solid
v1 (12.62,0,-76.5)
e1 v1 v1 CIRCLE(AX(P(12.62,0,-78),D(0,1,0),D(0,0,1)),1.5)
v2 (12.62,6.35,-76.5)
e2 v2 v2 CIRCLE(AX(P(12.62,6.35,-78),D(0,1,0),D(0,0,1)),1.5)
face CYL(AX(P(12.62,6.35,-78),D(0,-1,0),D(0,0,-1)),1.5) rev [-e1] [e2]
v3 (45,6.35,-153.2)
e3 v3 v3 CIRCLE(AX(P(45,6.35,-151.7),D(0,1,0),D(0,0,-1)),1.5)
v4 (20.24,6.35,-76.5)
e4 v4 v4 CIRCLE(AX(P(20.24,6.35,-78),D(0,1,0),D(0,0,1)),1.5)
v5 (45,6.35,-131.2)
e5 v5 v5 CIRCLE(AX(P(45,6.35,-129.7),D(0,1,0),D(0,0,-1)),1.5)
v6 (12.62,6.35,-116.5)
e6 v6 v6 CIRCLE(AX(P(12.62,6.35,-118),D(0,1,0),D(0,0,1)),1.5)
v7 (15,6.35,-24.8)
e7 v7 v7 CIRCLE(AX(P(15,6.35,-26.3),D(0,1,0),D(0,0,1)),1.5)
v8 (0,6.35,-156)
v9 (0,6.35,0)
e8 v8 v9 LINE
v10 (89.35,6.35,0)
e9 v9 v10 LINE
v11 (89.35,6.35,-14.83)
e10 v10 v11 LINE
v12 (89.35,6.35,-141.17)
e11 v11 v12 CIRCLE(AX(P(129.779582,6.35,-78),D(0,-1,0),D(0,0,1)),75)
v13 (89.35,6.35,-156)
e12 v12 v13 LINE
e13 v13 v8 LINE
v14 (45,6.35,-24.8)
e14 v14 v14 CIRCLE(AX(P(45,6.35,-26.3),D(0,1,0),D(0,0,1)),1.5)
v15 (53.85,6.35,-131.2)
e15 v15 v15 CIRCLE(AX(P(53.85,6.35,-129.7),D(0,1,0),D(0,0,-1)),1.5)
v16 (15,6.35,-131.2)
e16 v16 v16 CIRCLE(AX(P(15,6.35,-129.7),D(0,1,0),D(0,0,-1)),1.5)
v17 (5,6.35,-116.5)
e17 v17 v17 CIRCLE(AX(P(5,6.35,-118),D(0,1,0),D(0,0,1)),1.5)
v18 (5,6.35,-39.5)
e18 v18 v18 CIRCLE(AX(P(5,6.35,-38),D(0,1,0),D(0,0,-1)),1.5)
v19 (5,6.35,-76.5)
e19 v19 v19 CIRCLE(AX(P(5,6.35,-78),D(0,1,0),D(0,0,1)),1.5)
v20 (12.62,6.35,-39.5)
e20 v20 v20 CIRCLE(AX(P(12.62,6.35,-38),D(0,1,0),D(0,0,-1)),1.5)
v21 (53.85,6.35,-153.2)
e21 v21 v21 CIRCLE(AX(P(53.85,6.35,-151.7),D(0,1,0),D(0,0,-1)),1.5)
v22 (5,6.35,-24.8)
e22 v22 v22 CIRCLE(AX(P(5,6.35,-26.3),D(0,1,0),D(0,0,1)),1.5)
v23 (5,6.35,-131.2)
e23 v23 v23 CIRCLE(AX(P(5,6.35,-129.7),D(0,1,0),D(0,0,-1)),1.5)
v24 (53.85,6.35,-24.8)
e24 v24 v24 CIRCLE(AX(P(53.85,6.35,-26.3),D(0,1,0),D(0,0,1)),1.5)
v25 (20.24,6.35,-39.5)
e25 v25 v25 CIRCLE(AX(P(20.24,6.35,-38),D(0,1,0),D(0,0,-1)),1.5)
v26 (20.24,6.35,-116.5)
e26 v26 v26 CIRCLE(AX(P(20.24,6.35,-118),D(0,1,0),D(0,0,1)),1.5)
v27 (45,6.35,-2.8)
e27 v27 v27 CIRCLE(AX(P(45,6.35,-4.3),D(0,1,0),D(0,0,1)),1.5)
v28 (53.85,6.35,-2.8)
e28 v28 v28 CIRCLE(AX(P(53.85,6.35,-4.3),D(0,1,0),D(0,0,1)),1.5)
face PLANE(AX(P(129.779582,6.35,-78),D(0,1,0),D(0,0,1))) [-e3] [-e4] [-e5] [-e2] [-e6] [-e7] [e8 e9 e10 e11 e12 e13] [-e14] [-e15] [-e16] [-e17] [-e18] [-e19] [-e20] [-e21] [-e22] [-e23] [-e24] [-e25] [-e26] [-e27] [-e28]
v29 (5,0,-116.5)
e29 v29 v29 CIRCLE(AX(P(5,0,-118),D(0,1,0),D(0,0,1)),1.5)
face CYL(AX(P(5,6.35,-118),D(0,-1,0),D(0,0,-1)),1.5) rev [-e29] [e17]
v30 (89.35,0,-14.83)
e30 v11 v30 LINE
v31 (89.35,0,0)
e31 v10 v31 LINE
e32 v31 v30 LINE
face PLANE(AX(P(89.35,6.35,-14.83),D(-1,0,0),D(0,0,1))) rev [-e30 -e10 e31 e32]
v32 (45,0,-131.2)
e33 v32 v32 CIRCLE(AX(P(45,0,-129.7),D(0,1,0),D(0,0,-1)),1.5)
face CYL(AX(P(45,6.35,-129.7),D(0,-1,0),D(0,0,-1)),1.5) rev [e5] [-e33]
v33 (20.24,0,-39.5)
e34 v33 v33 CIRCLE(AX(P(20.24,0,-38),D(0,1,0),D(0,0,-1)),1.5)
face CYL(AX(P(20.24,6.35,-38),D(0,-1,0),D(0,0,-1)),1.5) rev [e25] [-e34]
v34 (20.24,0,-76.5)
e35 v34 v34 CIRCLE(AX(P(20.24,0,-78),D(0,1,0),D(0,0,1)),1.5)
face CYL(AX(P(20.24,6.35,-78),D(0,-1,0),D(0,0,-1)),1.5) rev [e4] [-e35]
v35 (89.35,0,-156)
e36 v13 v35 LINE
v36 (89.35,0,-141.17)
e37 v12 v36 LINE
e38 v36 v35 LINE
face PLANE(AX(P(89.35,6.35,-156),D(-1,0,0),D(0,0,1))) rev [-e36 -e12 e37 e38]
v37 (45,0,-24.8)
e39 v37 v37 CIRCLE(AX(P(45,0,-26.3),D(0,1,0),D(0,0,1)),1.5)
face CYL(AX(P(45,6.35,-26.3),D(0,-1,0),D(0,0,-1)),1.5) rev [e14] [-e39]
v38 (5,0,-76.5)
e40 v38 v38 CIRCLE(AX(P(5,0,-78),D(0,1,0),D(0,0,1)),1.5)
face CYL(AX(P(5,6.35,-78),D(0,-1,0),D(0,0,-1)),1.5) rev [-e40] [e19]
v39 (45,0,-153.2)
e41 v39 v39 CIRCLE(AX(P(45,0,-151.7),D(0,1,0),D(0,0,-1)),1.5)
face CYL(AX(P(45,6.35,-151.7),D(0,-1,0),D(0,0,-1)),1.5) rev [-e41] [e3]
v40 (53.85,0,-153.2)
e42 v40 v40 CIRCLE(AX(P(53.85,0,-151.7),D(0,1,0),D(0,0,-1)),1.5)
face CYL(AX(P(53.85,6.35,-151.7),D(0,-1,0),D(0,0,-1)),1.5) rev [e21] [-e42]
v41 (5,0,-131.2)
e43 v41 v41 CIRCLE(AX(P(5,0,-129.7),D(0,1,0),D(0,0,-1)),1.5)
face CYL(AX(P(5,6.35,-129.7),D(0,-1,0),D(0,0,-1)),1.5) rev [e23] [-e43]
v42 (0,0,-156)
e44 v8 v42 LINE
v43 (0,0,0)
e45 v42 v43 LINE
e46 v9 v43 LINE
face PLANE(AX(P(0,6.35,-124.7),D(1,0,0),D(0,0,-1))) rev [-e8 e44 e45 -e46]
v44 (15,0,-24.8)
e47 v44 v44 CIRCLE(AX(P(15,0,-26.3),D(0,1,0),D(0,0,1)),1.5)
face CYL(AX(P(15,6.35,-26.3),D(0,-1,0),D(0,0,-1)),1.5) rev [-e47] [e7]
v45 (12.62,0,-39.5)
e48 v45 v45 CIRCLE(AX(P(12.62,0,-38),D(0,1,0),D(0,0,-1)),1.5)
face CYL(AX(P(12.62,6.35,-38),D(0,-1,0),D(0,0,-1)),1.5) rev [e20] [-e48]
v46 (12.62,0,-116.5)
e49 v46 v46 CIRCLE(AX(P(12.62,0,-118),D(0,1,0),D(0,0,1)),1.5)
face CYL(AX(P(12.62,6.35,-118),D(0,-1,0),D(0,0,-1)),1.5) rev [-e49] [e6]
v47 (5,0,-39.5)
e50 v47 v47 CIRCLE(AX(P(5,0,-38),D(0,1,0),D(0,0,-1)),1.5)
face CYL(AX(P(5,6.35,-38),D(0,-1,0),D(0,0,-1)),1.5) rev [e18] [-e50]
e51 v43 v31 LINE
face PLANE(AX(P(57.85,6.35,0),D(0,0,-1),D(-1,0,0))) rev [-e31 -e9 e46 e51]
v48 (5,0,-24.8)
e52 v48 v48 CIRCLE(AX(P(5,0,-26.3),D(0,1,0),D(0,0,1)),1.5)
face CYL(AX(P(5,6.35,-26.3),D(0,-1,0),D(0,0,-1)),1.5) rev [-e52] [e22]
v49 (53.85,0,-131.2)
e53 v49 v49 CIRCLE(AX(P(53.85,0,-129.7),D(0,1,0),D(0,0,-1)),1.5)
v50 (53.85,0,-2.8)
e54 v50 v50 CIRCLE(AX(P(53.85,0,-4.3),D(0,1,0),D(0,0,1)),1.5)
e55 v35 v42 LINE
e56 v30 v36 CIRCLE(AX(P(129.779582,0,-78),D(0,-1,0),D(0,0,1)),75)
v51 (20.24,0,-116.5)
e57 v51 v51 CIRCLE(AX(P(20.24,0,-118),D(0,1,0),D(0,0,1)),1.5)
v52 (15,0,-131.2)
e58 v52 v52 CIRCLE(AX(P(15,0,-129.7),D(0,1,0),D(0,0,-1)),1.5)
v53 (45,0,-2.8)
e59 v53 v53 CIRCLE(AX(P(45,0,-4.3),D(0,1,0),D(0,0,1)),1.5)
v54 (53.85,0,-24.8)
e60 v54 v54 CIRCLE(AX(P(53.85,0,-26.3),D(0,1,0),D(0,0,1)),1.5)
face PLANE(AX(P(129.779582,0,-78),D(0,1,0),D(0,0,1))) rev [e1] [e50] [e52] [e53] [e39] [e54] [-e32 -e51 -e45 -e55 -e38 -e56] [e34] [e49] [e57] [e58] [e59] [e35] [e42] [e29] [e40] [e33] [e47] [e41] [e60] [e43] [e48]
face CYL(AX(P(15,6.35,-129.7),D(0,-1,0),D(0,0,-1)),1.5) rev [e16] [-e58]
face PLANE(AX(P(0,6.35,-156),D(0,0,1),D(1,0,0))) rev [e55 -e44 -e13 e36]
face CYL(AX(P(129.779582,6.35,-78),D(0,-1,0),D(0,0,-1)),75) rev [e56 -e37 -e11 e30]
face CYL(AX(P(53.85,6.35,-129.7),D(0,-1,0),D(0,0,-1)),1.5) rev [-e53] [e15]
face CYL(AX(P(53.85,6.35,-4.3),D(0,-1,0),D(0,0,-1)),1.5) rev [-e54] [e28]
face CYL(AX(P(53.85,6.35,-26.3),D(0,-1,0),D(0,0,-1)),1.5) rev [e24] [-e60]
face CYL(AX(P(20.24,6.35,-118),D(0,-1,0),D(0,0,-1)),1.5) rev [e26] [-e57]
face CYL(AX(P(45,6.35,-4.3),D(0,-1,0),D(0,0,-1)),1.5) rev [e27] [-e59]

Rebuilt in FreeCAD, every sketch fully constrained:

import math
import FreeCAD as App
import Part
import Sketcher

V = App.Vector
Q = App.Units.Quantity

doc = App.newDocument("Part")
body = doc.addObject("PartDesign::Body", "Body")

sketch1 = body.newObject("Sketcher::SketchObject", "Sketch")
sketch1.AttachmentSupport = (doc.getObject("XZ_Plane"), [""])
sketch1.MapMode = "FlatFace"
sketch1.addGeometry(Part.LineSegment(V(0, 0, 0), V(89.35, 0, 0)), False)
sketch1.addGeometry(Part.LineSegment(V(89.35, 0, 0), V(89.35, -14.83, 0)), False)
sketch1.addGeometry(Part.ArcOfCircle(Part.Circle(V(129.779582, -78, 0), V(0, 0, 1), 75), math.radians(122.619746), math.radians(237.380254)), False)
sketch1.addGeometry(Part.LineSegment(V(89.35, -141.17, 0), V(89.35, -156, 0)), False)
sketch1.addGeometry(Part.LineSegment(V(89.35, -156, 0), V(0, -156, 0)), False)
sketch1.addGeometry(Part.LineSegment(V(0, -156, 0), V(0, 0, 0)), False)
sketch1.addGeometry(Part.Circle(V(5, -26.3, 0), V(0, 0, 1), 1.5), False)
sketch1.addGeometry(Part.Circle(V(5, -38, 0), V(0, 0, 1), 1.5), False)
sketch1.addGeometry(Part.Circle(V(15, -26.3, 0), V(0, 0, 1), 1.5), False)
sketch1.addGeometry(Part.Circle(V(12.62, -38, 0), V(0, 0, 1), 1.5), False)
sketch1.addGeometry(Part.Circle(V(20.24, -38, 0), V(0, 0, 1), 1.5), False)
sketch1.addGeometry(Part.Circle(V(45, -4.3, 0), V(0, 0, 1), 1.5), False)
sketch1.addGeometry(Part.Circle(V(53.85, -4.3, 0), V(0, 0, 1), 1.5), False)
sketch1.addGeometry(Part.Circle(V(45, -26.3, 0), V(0, 0, 1), 1.5), False)
sketch1.addGeometry(Part.Circle(V(53.85, -26.3, 0), V(0, 0, 1), 1.5), False)
sketch1.addGeometry(Part.Circle(V(5, -78, 0), V(0, 0, 1), 1.5), False)
sketch1.addGeometry(Part.Circle(V(12.62, -78, 0), V(0, 0, 1), 1.5), False)
sketch1.addGeometry(Part.Circle(V(20.24, -78, 0), V(0, 0, 1), 1.5), False)
sketch1.addGeometry(Part.Circle(V(5, -118, 0), V(0, 0, 1), 1.5), False)
sketch1.addGeometry(Part.Circle(V(5, -129.7, 0), V(0, 0, 1), 1.5), False)
sketch1.addGeometry(Part.Circle(V(12.62, -118, 0), V(0, 0, 1), 1.5), False)
sketch1.addGeometry(Part.Circle(V(15, -129.7, 0), V(0, 0, 1), 1.5), False)
sketch1.addGeometry(Part.Circle(V(20.24, -118, 0), V(0, 0, 1), 1.5), False)
sketch1.addGeometry(Part.Circle(V(45, -129.7, 0), V(0, 0, 1), 1.5), False)
sketch1.addGeometry(Part.Circle(V(53.85, -129.7, 0), V(0, 0, 1), 1.5), False)
sketch1.addGeometry(Part.Circle(V(45, -151.7, 0), V(0, 0, 1), 1.5), False)
sketch1.addGeometry(Part.Circle(V(53.85, -151.7, 0), V(0, 0, 1), 1.5), False)
sketch1.addConstraint(Sketcher.Constraint("Coincident", 0, 2, 1, 1))
sketch1.addConstraint(Sketcher.Constraint("Coincident", 1, 2, 2, 1))
sketch1.addConstraint(Sketcher.Constraint("Coincident", 2, 2, 3, 1))
sketch1.addConstraint(Sketcher.Constraint("Coincident", 3, 2, 4, 1))
sketch1.addConstraint(Sketcher.Constraint("Coincident", 4, 2, 5, 1))
sketch1.addConstraint(Sketcher.Constraint("Coincident", 5, 2, 0, 1))
sketch1.addConstraint(Sketcher.Constraint("Horizontal", 0))
sketch1.addConstraint(Sketcher.Constraint("Vertical", 1))
sketch1.addConstraint(Sketcher.Constraint("Vertical", 3))
sketch1.addConstraint(Sketcher.Constraint("Horizontal", 4))
sketch1.addConstraint(Sketcher.Constraint("Vertical", 5))
sketch1.addConstraint(Sketcher.Constraint("Coincident", 5, 2, -1, 1))
sketch1.addConstraint(Sketcher.Constraint("Equal", 6, 7))
sketch1.addConstraint(Sketcher.Constraint("Equal", 7, 8))
sketch1.addConstraint(Sketcher.Constraint("Equal", 8, 9))
sketch1.addConstraint(Sketcher.Constraint("Equal", 9, 10))
sketch1.addConstraint(Sketcher.Constraint("Equal", 10, 11))
sketch1.addConstraint(Sketcher.Constraint("Equal", 11, 12))
sketch1.addConstraint(Sketcher.Constraint("Equal", 12, 13))
sketch1.addConstraint(Sketcher.Constraint("Equal", 13, 14))
sketch1.addConstraint(Sketcher.Constraint("Equal", 14, 15))
sketch1.addConstraint(Sketcher.Constraint("Equal", 15, 16))
sketch1.addConstraint(Sketcher.Constraint("Equal", 16, 17))
sketch1.addConstraint(Sketcher.Constraint("Equal", 17, 18))
sketch1.addConstraint(Sketcher.Constraint("Equal", 18, 19))
sketch1.addConstraint(Sketcher.Constraint("Equal", 19, 20))
sketch1.addConstraint(Sketcher.Constraint("Equal", 20, 21))
sketch1.addConstraint(Sketcher.Constraint("Equal", 21, 22))
sketch1.addConstraint(Sketcher.Constraint("Equal", 22, 23))
sketch1.addConstraint(Sketcher.Constraint("Equal", 23, 24))
sketch1.addConstraint(Sketcher.Constraint("Equal", 24, 25))
sketch1.addConstraint(Sketcher.Constraint("Equal", 25, 26))
sketch1.addConstraint(Sketcher.Constraint("Horizontal", 6, 3, 8, 3))
sketch1.addConstraint(Sketcher.Constraint("Horizontal", 7, 3, 9, 3))
sketch1.addConstraint(Sketcher.Constraint("Horizontal", 9, 3, 10, 3))
sketch1.addConstraint(Sketcher.Constraint("Horizontal", 11, 3, 12, 3))
sketch1.addConstraint(Sketcher.Constraint("Horizontal", 8, 3, 13, 3))
sketch1.addConstraint(Sketcher.Constraint("Horizontal", 13, 3, 14, 3))
sketch1.addConstraint(Sketcher.Constraint("Horizontal", 2, 3, 15, 3))
sketch1.addConstraint(Sketcher.Constraint("Horizontal", 15, 3, 16, 3))
sketch1.addConstraint(Sketcher.Constraint("Horizontal", 16, 3, 17, 3))
sketch1.addConstraint(Sketcher.Constraint("Horizontal", 18, 3, 20, 3))
sketch1.addConstraint(Sketcher.Constraint("Horizontal", 19, 3, 21, 3))
sketch1.addConstraint(Sketcher.Constraint("Horizontal", 20, 3, 22, 3))
sketch1.addConstraint(Sketcher.Constraint("Horizontal", 21, 3, 23, 3))
sketch1.addConstraint(Sketcher.Constraint("Horizontal", 23, 3, 24, 3))
sketch1.addConstraint(Sketcher.Constraint("Horizontal", 25, 3, 26, 3))
sketch1.addConstraint(Sketcher.Constraint("Vertical", 6, 3, 7, 3))
sketch1.addConstraint(Sketcher.Constraint("Vertical", 11, 3, 13, 3))
sketch1.addConstraint(Sketcher.Constraint("Vertical", 12, 3, 14, 3))
sketch1.addConstraint(Sketcher.Constraint("Vertical", 7, 3, 15, 3))
sketch1.addConstraint(Sketcher.Constraint("Vertical", 9, 3, 16, 3))
sketch1.addConstraint(Sketcher.Constraint("Vertical", 10, 3, 17, 3))
sketch1.addConstraint(Sketcher.Constraint("Vertical", 15, 3, 18, 3))
sketch1.addConstraint(Sketcher.Constraint("Vertical", 18, 3, 19, 3))
sketch1.addConstraint(Sketcher.Constraint("Vertical", 16, 3, 20, 3))
sketch1.addConstraint(Sketcher.Constraint("Vertical", 8, 3, 21, 3))
sketch1.addConstraint(Sketcher.Constraint("Vertical", 17, 3, 22, 3))
sketch1.addConstraint(Sketcher.Constraint("Vertical", 13, 3, 23, 3))
sketch1.addConstraint(Sketcher.Constraint("Vertical", 14, 3, 24, 3))
sketch1.addConstraint(Sketcher.Constraint("Vertical", 23, 3, 25, 3))
sketch1.addConstraint(Sketcher.Constraint("Vertical", 24, 3, 26, 3))
sketch1.addConstraint(Sketcher.Constraint("Vertical", 1, 2, 2, 2))
sketch1.addConstraint(Sketcher.Constraint("Equal", 1, 3))
sketch1.addConstraint(Sketcher.Constraint("Diameter", 6, Q("3 mm")))
sketch1.addConstraint(Sketcher.Constraint("Radius", 2, Q("75 mm")))
sketch1.addConstraint(Sketcher.Constraint("DistanceY", 5, 1, 5, 2, Q("156 mm")))
sketch1.addConstraint(Sketcher.Constraint("DistanceX", -1, 1, 6, 3, Q("5 mm")))
sketch1.addConstraint(Sketcher.Constraint("DistanceY", 7, 3, -1, 1, Q("38 mm")))
sketch1.addConstraint(Sketcher.Constraint("DistanceX", -1, 1, 8, 3, Q("15 mm")))
sketch1.addConstraint(Sketcher.Constraint("DistanceX", -1, 1, 11, 3, Q("45 mm")))
sketch1.addConstraint(Sketcher.Constraint("DistanceY", 18, 3, -1, 1, Q("118 mm")))
sketch1.addConstraint(Sketcher.Constraint("DistanceY", 8, 3, 11, 3, Q("22 mm")))
sketch1.addConstraint(Sketcher.Constraint("DistanceY", 25, 3, 23, 3, Q("22 mm")))
sketch1.addConstraint(Sketcher.Constraint("DistanceX", 0, 1, 0, 2, Q("89.35 mm")))
sketch1.addConstraint(Sketcher.Constraint("DistanceY", 1, 2, 1, 1, Q("14.83 mm")))
sketch1.addConstraint(Sketcher.Constraint("DistanceY", 6, 3, -1, 1, Q("26.3 mm")))
sketch1.addConstraint(Sketcher.Constraint("DistanceY", 19, 3, -1, 1, Q("129.7 mm")))
sketch1.addConstraint(Sketcher.Constraint("DistanceX", 12, 3, 0, 2, Q("35.5 mm")))
sketch1.addConstraint(Sketcher.Constraint("DistanceX", -1, 1, 9, 3, Q("12.62 mm")))
sketch1.addConstraint(Sketcher.Constraint("DistanceX", -1, 1, 10, 3, Q("20.24 mm")))
pad1 = body.newObject("PartDesign::Pad", "Pad")
pad1.Profile = sketch1
pad1.Length = 6.35
pad1.Reversed = True

doc.recompute()
